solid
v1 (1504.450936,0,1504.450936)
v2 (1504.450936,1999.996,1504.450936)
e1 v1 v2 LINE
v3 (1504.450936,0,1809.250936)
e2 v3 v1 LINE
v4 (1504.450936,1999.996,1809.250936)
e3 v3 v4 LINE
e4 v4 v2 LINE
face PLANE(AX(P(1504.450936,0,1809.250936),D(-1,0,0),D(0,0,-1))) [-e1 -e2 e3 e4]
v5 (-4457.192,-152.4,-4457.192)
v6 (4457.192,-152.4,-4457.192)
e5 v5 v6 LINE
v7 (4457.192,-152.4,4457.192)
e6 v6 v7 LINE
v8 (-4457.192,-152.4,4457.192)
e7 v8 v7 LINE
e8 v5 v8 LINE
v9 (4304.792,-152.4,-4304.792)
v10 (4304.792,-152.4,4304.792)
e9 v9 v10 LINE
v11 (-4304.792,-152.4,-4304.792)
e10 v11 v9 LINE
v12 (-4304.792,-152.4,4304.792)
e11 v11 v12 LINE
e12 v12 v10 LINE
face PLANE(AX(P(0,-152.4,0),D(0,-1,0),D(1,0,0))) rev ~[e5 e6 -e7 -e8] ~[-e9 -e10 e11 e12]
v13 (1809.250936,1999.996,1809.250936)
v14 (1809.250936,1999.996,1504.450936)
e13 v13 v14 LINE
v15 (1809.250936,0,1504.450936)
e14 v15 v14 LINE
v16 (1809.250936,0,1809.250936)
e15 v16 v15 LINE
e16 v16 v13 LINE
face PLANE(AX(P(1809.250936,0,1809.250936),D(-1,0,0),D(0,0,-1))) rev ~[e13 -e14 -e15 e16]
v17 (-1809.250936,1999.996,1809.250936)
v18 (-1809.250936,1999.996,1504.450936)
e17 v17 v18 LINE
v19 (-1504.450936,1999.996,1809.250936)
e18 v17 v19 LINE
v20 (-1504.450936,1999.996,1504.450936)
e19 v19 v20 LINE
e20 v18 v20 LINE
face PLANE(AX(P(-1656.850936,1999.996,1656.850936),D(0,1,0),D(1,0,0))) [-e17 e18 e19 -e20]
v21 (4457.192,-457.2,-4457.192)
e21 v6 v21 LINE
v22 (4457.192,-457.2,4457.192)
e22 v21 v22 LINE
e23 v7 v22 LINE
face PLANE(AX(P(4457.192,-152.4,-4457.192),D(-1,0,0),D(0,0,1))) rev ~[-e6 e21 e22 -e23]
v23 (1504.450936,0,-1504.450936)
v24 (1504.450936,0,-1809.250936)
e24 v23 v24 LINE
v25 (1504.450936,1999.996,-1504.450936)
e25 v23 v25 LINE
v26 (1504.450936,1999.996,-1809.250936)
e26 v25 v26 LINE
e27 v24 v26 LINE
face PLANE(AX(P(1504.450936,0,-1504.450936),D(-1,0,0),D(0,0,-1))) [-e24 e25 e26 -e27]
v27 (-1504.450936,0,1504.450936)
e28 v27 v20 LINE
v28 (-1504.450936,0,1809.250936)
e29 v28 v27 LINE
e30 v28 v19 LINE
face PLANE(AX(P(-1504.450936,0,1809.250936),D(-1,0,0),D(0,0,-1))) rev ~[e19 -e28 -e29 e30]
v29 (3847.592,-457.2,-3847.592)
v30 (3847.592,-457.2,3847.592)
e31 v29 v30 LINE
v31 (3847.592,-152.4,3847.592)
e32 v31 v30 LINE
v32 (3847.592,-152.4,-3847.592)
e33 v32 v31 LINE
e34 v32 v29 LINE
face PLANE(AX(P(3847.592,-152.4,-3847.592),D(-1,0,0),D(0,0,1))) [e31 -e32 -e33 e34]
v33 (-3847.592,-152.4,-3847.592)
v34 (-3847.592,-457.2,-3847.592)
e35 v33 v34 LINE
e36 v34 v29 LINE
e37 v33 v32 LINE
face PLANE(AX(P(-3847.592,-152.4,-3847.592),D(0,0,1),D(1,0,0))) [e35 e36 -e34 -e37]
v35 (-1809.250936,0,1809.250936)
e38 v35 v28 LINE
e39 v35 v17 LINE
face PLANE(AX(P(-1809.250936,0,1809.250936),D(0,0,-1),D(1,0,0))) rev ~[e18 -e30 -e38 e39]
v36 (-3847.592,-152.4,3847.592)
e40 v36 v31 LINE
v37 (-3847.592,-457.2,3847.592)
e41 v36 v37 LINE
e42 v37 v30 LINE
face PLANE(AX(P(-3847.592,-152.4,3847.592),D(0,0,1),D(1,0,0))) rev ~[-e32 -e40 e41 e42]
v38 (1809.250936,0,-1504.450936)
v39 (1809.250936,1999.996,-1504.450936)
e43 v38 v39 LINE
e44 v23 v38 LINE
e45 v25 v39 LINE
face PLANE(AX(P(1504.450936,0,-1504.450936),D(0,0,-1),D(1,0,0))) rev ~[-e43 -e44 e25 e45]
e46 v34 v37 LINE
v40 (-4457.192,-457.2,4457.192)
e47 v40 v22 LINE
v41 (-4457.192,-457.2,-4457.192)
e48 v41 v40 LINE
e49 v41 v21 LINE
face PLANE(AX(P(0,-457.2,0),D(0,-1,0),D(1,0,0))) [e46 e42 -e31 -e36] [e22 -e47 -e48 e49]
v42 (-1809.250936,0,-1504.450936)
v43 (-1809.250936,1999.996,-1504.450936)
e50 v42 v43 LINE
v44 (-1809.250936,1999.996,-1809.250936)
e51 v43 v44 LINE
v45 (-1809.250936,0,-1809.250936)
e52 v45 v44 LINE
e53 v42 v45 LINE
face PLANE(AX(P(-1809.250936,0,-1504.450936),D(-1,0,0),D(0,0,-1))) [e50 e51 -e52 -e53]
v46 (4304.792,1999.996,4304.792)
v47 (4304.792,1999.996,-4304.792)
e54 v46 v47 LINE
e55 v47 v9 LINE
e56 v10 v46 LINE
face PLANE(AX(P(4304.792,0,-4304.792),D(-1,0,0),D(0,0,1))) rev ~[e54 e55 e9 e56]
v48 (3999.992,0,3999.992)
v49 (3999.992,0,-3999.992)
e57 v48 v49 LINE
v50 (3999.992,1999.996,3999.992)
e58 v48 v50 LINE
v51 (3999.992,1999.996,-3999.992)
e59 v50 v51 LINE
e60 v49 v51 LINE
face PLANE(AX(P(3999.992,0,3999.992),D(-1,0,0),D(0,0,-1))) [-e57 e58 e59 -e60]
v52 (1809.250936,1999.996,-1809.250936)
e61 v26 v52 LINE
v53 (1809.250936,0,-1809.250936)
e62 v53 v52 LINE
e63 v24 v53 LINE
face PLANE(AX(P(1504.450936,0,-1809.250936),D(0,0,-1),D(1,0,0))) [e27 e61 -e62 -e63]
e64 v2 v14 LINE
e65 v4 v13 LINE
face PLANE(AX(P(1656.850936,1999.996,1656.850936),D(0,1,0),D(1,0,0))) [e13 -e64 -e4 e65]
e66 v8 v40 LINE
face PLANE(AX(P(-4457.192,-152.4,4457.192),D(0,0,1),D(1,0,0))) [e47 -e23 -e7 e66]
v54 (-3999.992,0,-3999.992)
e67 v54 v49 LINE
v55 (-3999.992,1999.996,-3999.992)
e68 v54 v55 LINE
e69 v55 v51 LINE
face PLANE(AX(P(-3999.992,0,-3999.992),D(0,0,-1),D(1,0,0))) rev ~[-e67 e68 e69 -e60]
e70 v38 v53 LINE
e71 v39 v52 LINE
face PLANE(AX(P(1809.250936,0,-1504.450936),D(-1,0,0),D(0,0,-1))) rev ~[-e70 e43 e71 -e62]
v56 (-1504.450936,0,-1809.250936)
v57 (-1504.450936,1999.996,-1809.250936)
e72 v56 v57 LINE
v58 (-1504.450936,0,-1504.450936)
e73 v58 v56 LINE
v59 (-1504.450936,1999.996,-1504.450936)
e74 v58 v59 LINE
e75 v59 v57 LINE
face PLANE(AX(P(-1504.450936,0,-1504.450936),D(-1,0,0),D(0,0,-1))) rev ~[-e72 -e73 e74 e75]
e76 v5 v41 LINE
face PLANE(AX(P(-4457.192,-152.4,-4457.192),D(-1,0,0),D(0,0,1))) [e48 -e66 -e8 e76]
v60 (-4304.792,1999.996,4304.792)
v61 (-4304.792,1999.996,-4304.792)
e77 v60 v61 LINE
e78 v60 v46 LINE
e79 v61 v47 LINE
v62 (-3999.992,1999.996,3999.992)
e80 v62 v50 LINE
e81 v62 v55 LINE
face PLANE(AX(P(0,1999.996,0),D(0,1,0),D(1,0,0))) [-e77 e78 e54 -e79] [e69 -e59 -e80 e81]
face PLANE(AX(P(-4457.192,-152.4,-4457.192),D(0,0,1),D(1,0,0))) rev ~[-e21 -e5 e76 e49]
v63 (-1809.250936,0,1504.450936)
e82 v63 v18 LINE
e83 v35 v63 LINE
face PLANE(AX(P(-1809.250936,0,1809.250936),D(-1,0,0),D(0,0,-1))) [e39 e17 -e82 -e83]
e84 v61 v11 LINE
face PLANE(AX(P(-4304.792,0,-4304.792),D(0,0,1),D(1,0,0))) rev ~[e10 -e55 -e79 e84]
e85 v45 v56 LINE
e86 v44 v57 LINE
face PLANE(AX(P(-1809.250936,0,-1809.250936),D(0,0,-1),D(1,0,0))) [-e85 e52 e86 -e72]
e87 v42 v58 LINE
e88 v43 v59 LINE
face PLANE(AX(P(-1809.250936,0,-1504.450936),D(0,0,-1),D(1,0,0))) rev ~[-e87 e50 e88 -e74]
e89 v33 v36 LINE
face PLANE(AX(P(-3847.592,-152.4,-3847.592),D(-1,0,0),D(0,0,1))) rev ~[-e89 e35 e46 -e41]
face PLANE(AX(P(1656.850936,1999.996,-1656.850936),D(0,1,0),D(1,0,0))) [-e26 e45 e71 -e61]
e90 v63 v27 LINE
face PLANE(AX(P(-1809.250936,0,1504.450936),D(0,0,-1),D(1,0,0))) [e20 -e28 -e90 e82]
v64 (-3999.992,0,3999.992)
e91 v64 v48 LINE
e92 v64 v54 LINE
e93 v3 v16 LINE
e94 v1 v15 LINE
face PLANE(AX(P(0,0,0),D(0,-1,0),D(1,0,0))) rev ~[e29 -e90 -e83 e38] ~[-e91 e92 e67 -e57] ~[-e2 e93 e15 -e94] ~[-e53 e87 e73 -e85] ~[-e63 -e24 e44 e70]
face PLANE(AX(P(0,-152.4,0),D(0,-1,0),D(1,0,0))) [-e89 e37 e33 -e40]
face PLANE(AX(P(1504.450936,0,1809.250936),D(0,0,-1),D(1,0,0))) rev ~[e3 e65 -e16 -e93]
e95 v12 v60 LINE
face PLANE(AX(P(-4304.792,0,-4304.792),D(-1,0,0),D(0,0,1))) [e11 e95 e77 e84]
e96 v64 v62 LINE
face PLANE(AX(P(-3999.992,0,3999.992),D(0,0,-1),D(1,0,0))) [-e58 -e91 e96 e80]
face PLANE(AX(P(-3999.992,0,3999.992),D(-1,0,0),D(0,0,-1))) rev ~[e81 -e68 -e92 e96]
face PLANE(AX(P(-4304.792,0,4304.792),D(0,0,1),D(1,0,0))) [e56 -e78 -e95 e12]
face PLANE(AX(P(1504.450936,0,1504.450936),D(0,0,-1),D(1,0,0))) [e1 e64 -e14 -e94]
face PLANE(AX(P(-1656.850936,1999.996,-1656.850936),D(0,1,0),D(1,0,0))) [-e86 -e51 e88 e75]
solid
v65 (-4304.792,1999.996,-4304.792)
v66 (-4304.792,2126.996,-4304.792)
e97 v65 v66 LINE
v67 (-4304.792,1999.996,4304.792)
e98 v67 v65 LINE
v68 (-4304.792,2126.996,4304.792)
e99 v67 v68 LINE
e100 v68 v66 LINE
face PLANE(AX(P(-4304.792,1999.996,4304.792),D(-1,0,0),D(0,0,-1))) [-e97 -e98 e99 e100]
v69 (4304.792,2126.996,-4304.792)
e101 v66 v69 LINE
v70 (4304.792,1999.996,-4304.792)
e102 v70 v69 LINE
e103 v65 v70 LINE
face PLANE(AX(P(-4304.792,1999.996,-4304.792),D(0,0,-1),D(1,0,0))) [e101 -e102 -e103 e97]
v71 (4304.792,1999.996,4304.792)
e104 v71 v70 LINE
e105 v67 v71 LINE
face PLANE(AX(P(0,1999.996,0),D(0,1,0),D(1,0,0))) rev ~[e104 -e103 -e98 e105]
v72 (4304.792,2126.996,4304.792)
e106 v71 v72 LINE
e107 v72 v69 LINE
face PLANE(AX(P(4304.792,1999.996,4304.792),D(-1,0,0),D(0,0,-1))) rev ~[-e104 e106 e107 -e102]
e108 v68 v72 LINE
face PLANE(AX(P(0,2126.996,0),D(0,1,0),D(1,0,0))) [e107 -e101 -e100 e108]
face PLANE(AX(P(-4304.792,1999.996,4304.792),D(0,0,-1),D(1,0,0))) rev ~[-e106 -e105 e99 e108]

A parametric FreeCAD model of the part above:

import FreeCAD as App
import Part
import Sketcher
Q = App.Units.Quantity


def add_polygon(sketch, points):
    """Adds a closed chain of lines whose ends are joined by coincident constraints."""
    first, n = sketch.GeometryCount, len(points)
    for a, b in zip(points, points[1:] + points[:1]):
        sketch.addGeometry(Part.LineSegment(App.Vector(*a, 0), App.Vector(*b, 0)), False)
    for i in range(n):
        sketch.addConstraint(Sketcher.Constraint("Coincident", first + i, 2, first + (i + 1) % n, 1))

doc = App.newDocument("Part")
body = doc.addObject("PartDesign::Body", "Body")

sketch1 = doc.addObject("Sketcher::SketchObject", "Sketch")
body.addObject(sketch1)
sketch1.AttachmentSupport = (doc.XZ_Plane, [""])
sketch1.MapMode = "FlatFace"
add_polygon(sketch1, [(-4305, -4305), (-4305, 4305), (4305, 4305), (4305, -4305)])
add_polygon(sketch1, [(4000, 4000), (-4000, 4000), (-4000, -4000), (4000, -4000)])
sketch1.addConstraint([
    Sketcher.Constraint("Vertical", 0),
    Sketcher.Constraint("Horizontal", 1),
    Sketcher.Constraint("Vertical", 2),
    Sketcher.Constraint("Horizontal", 3),
    Sketcher.Constraint("Horizontal", 4),
    Sketcher.Constraint("Vertical", 5),
    Sketcher.Constraint("Horizontal", 6),
    Sketcher.Constraint("Vertical", 7),
    Sketcher.Constraint("Symmetric", 0, 2, 2, 2, -1, 1),
    Sketcher.Constraint("Symmetric", 4, 2, 6, 2, -1, 1),
    Sketcher.Constraint("Equal", 3, 0),
    Sketcher.Constraint("Equal", 6, 5),
    Sketcher.Constraint("DistanceX", 0, 2, 4, 2, Q("12 in")),
    Sketcher.Constraint("DistanceX", 1, 1, 1, 2, Q("338.96 in")),
])
pad1 = doc.addObject("PartDesign::Pad", "Pad")
body.addObject(pad1)
pad1.Profile = sketch1
pad1.Length = Q("78.74 in")
pad1.Reversed = True

sketch2 = doc.addObject("Sketcher::SketchObject", "Sketch001")
body.addObject(sketch2)
sketch2.AttachmentSupport = (doc.XZ_Plane, [""])
sketch2.MapMode = "FlatFace"
add_polygon(sketch2, [(-4305, 4305), (-4305, -4305), (4305, -4305), (4305, 4305)])
sketch2.addConstraint([
    Sketcher.Constraint("Vertical", 0),
    Sketcher.Constraint("Horizontal", 1),
    Sketcher.Constraint("Vertical", 2),
    Sketcher.Constraint("Horizontal", 3),
    Sketcher.Constraint("Symmetric", 0, 2, 2, 2, -1, 1),
    Sketcher.Constraint("Equal", 3, 0),
    Sketcher.Constraint("DistanceX", 1, 1, 1, 2, Q("338.96 in")),
])
pad2 = doc.addObject("PartDesign::Pad", "Pad001")
body.addObject(pad2)
pad2.Profile = sketch2
pad2.Length = Q("6 in")

sketch3 = doc.addObject("Sketcher::SketchObject", "Sketch002")
body.addObject(sketch3)
sketch3.AttachmentSupport = (doc.XZ_Plane, [""])
sketch3.MapMode = "FlatFace"
sketch3.AttachmentOffset = App.Placement(App.Vector(0, 0, 6 * 25.4), App.Rotation())
add_polygon(sketch3, [(-4457, 4457), (-4457, -4457), (4457, -4457), (4457, 4457)])
add_polygon(sketch3, [(3848, -3848), (-3848, -3848), (-3848, 3848), (3848, 3848)])
sketch3.addConstraint([
    Sketcher.Constraint("Vertical", 0),
    Sketcher.Constraint("Horizontal", 1),
    Sketcher.Constraint("Vertical", 2),
    Sketcher.Constraint("Horizontal", 3),
    Sketcher.Constraint("Horizontal", 4),
    Sketcher.Constraint("Vertical", 5),
    Sketcher.Constraint("Horizontal", 6),
    Sketcher.Constraint("Vertical", 7),
    Sketcher.Constraint("Symmetric", 0, 2, 2, 2, -1, 1),
    Sketcher.Constraint("Symmetric", 4, 2, 6, 2, -1, 1),
    Sketcher.Constraint("Equal", 3, 0),
    Sketcher.Constraint("Equal", 6, 5),
    Sketcher.Constraint("DistanceX", 0, 2, 4, 2, Q("24 in")),
    Sketcher.Constraint("DistanceX", 1, 1, 1, 2, Q("350.96 in")),
])
pad3 = doc.addObject("PartDesign::Pad", "Pad002")
body.addObject(pad3)
pad3.Profile = sketch3
pad3.Length = Q("12 in")

sketch4 = doc.addObject("Sketcher::SketchObject", "Sketch003")
body.addObject(sketch4)
sketch4.AttachmentSupport = (doc.XZ_Plane, [""])
sketch4.MapMode = "FlatFace"
add_polygon(sketch4, [(1504, -1809), (1504, -1504), (1809, -1504), (1809, -1809)])
add_polygon(sketch4, [(-1809, -1809), (-1809, -1504), (-1504, -1504), (-1504, -1809)])
add_polygon(sketch4, [(1504, 1504), (1504, 1809), (1809, 1809), (1809, 1504)])
add_polygon(sketch4, [(-1809, 1504), (-1809, 1809), (-1504, 1809), (-1504, 1504)])
sketch4.addConstraint([
    Sketcher.Constraint("Vertical", 0),
    Sketcher.Constraint("Horizontal", 1),
    Sketcher.Constraint("Vertical", 2),
    Sketcher.Constraint("Horizontal", 3),
    Sketcher.Constraint("Vertical", 4),
    Sketcher.Constraint("Horizontal", 5),
    Sketcher.Constraint("Vertical", 6),
    Sketcher.Constraint("Horizontal", 7),
    Sketcher.Constraint("Vertical", 8),
    Sketcher.Constraint("Horizontal", 9),
    Sketcher.Constraint("Vertical", 10),
    Sketcher.Constraint("Horizontal", 11),
    Sketcher.Constraint("Vertical", 12),
    Sketcher.Constraint("Horizontal", 13),
    Sketcher.Constraint("Vertical", 14),
    Sketcher.Constraint("Horizontal", 15),
    Sketcher.Constraint("Symmetric", 6, 2, 8, 2, -1, 1),
    Sketcher.Constraint("Symmetric", 4, 2, 10, 2, -1, 1),
    Sketcher.Constraint("Symmetric", 2, 2, 12, 2, -1, 1),
    Sketcher.Constraint("Symmetric", 0, 2, 14, 2, -1, 1),
    Sketcher.Constraint("Symmetric", 1, 2, 4, 2, -2),
    Sketcher.Constraint("Symmetric", 3, 2, 6, 2, -2),
    Sketcher.Constraint("Equal", 15, 0),
    Sketcher.Constraint("DistanceX", 1, 1, 1, 2, Q("12 in")),
    Sketcher.Constraint("DistanceX", 4, 2, 0, 2, Q("3313.701872 mm")),
    Sketcher.Constraint("DistanceY", 0, 2, 8, 2, Q("3313.701872 mm")),
])
pad4 = doc.addObject("PartDesign::Pad", "Pad003")
body.addObject(pad4)
pad4.Profile = sketch4
pad4.Length = Q("78.74 in")
pad4.Reversed = True
body2 = doc.addObject("PartDesign::Body", "Body001")

sketch5 = doc.addObject("Sketcher::SketchObject", "Sketch004")
body2.addObject(sketch5)
sketch5.AttachmentSupport = (doc.getObject("XZ_Plane001"), [""])
sketch5.MapMode = "FlatFace"
sketch5.AttachmentOffset = App.Placement(App.Vector(0, 0, -78.74 * 25.4), App.Rotation())
add_polygon(sketch5, [(-4305, -4305), (-4305, 4305), (4305, 4305), (4305, -4305)])
sketch5.addConstraint([
    Sketcher.Constraint("Vertical", 0),
    Sketcher.Constraint("Horizontal", 1),
    Sketcher.Constraint("Vertical", 2),
    Sketcher.Constraint("Horizontal", 3),
    Sketcher.Constraint("Symmetric", 0, 2, 2, 2, -1, 1),
    Sketcher.Constraint("Equal", 3, 0),
    Sketcher.Constraint("DistanceX", 1, 1, 1, 2, Q("338.96 in")),
])
pad5 = doc.addObject("PartDesign::Pad", "Pad004")
body2.addObject(pad5)
pad5.Profile = sketch5
pad5.Length = Q("5 in")
pad5.Reversed = True

doc.recompute()
